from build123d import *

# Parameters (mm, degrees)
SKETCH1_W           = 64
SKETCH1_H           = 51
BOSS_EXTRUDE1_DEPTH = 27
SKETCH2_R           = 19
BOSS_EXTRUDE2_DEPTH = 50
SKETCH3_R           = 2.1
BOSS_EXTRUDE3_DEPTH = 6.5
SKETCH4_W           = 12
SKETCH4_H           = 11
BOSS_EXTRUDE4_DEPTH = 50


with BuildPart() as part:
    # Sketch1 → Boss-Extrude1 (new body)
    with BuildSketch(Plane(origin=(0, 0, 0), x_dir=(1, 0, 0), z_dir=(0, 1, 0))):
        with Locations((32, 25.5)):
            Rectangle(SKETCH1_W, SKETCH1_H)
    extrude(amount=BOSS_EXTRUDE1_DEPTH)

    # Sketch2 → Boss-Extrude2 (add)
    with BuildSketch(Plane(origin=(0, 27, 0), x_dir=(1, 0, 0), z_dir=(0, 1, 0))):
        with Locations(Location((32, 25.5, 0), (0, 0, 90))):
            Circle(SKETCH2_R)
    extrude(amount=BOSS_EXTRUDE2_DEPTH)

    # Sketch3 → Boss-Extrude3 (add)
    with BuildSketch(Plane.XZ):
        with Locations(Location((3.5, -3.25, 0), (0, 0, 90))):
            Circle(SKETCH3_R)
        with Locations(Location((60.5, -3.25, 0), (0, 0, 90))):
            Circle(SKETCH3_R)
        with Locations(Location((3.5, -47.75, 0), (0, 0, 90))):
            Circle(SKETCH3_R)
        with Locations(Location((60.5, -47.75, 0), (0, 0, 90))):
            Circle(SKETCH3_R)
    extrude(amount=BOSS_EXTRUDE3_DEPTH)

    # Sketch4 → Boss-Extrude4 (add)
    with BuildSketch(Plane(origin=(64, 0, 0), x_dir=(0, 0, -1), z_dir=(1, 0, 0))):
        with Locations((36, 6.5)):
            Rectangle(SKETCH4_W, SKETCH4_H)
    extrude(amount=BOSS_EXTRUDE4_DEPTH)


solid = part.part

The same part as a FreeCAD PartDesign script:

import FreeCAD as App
import Part
import Sketcher

V = App.Vector

doc = App.newDocument("Part")
body = doc.addObject("PartDesign::Body", "Body")

# Sketch on XZ plane
sketch1 = doc.addObject("Sketcher::SketchObject", "Sketch")
body.addObject(sketch1)
sketch1.AttachmentSupport = (doc.XZ_Plane, [""])
sketch1.MapMode = "FlatFace"
sketch1.addGeometry([
    Part.LineSegment(V(0, -51, 0), V(0, 0, 0)),
    Part.LineSegment(V(0, 0, 0), V(64, 0, 0)),
    Part.LineSegment(V(64, 0, 0), V(64, -51, 0)),
    Part.LineSegment(V(64, -51, 0), V(0, -51, 0)),
], False)
sketch1.addConstraint([
    Sketcher.Constraint("Coincident", 0, 2, 1, 1),
    Sketcher.Constraint("Coincident", 1, 2, 2, 1),
    Sketcher.Constraint("Coincident", 2, 2, 3, 1),
    Sketcher.Constraint("Coincident", 3, 2, 0, 1),
    Sketcher.Constraint("Vertical", 0),
    Sketcher.Constraint("Horizontal", 1),
    Sketcher.Constraint("Vertical", 2),
    Sketcher.Constraint("Horizontal", 3),
    Sketcher.Constraint("Coincident", 0, 2, -1, 1),
    Sketcher.Constraint("DistanceX", 1, 1, 1, 2, 64.0),
    Sketcher.Constraint("DistanceY", 0, 1, 0, 2, 51.0),
])
pad1 = doc.addObject("PartDesign::Pad", "Pad")
body.addObject(pad1)
pad1.Profile = sketch1
pad1.Length = 27
pad1.Reversed = True

# Sketch on XZ plane
sketch2 = doc.addObject("Sketcher::SketchObject", "Sketch001")
body.addObject(sketch2)
sketch2.AttachmentSupport = (doc.XZ_Plane, [""])
sketch2.MapMode = "FlatFace"
sketch2.AttachmentOffset = App.Placement(V(0, 0, -27), App.Rotation())
sketch2.addGeometry(Part.Circle(V(32, -26, 0), V(0, 0, 1), 19), False)
sketch2.addConstraint([
    Sketcher.Constraint("Diameter", 0, 38.0),
    Sketcher.Constraint("DistanceX", -1, 1, 0, 3, 32.0),
    Sketcher.Constraint("DistanceY", 0, 3, -1, 1, 25.5),
])
pad2 = doc.addObject("PartDesign::Pad", "Pad001")
body.addObject(pad2)
pad2.Profile = sketch2
pad2.Length = 50
pad2.Reversed = True

# Sketch on XZ plane
sketch3 = doc.addObject("Sketcher::SketchObject", "Sketch002")
body.addObject(sketch3)
sketch3.AttachmentSupport = (doc.XZ_Plane, [""])
sketch3.MapMode = "FlatFace"
sketch3.addGeometry([
    Part.Circle(V(3.5, -3.2, 0), V(0, 0, 1), 2.1),
    Part.Circle(V(60.5, -3.2, 0), V(0, 0, 1), 2.1),
    Part.Circle(V(3.5, -47.8, 0), V(0, 0, 1), 2.1),
    Part.Circle(V(60.5, -47.8, 0), V(0, 0, 1), 2.1),
], False)
sketch3.addConstraint([
    Sketcher.Constraint("Equal", 0, 1),
    Sketcher.Constraint("Equal", 1, 2),
    Sketcher.Constraint("Equal", 2, 3),
    Sketcher.Constraint("Horizontal", 0, 3, 1, 3),
    Sketcher.Constraint("Horizontal", 2, 3, 3, 3),
    Sketcher.Constraint("Vertical", 0, 3, 2, 3),
    Sketcher.Constraint("Vertical", 1, 3, 3, 3),
    Sketcher.Constraint("Diameter", 0, 4.2),
    Sketcher.Constraint("DistanceX", 0, 3, 1, 3, 57.0),
    Sketcher.Constraint("DistanceX", -1, 1, 0, 3, 3.5),
    Sketcher.Constraint("DistanceY", 2, 3, 0, 3, 44.5),
    Sketcher.Constraint("DistanceY", 0, 3, -1, 1, 3.25),
])
pad3 = doc.addObject("PartDesign::Pad", "Pad002")
body.addObject(pad3)
pad3.Profile = sketch3
pad3.Length = 6.5

# Sketch on YZ plane
sketch4 = doc.addObject("Sketcher::SketchObject", "Sketch003")
body.addObject(sketch4)
sketch4.AttachmentSupport = (doc.YZ_Plane, [""])
sketch4.MapMode = "FlatFace"
sketch4.AttachmentOffset = App.Placement(V(0, 0, 64), App.Rotation())
sketch4.addGeometry([
    Part.LineSegment(V(12, -30, 0), V(1, -30, 0)),
    Part.LineSegment(V(1, -30, 0), V(1, -42, 0)),
    Part.LineSegment(V(1, -42, 0), V(12, -42, 0)),
    Part.LineSegment(V(12, -42, 0), V(12, -30, 0)),
], False)
sketch4.addConstraint([
    Sketcher.Constraint("Coincident", 0, 2, 1, 1),
    Sketcher.Constraint("Coincident", 1, 2, 2, 1),
    Sketcher.Constraint("Coincident", 2, 2, 3, 1),
    Sketcher.Constraint("Coincident", 3, 2, 0, 1),
    Sketcher.Constraint("Horizontal", 0),
    Sketcher.Constraint("Vertical", 1),
    Sketcher.Constraint("Horizontal", 2),
    Sketcher.Constraint("Vertical", 3),
    Sketcher.Constraint("DistanceX", 0, 2, 0, 1, 11.0),
    Sketcher.Constraint("DistanceY", 1, 2, 1, 1, 12.0),
    Sketcher.Constraint("DistanceX", -1, 1, 0, 2, 1.0),
    Sketcher.Constraint("DistanceY", 0, 2, -1, 1, 30.0),
])
pad4 = doc.addObject("PartDesign::Pad", "Pad003")
body.addObject(pad4)
pad4.Profile = sketch4
pad4.Length = 50

doc.recompute()
